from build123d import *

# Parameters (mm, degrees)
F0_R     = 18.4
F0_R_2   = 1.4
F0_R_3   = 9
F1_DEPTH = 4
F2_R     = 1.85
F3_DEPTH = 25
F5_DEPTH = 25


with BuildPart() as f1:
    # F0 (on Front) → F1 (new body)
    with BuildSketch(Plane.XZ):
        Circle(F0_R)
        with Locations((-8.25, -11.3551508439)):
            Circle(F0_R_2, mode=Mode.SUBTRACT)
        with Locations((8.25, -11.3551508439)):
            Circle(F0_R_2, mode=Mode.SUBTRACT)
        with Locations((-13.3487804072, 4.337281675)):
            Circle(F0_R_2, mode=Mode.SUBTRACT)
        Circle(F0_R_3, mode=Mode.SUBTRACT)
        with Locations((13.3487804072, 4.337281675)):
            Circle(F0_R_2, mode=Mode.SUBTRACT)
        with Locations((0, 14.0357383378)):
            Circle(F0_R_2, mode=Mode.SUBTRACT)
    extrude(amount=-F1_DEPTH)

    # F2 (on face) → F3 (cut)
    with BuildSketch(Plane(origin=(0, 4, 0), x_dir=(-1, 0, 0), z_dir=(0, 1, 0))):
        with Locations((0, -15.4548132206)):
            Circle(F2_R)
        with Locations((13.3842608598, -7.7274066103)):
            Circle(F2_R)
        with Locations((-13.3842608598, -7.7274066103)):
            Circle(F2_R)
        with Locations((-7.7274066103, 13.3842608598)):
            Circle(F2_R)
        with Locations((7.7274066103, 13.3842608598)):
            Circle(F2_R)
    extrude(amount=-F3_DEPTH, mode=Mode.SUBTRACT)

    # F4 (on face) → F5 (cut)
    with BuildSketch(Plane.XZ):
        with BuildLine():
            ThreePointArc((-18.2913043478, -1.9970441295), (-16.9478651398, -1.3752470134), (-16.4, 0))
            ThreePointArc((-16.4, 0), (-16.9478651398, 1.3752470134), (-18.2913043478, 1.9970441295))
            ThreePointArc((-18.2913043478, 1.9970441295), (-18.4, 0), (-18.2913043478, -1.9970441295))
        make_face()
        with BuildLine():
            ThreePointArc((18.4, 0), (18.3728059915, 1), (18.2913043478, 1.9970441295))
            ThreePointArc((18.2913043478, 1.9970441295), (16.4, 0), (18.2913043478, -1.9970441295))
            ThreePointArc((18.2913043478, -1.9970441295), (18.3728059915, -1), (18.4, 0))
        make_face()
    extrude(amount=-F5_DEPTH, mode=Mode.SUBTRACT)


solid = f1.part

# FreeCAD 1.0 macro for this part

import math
import FreeCAD as App
import Part
import Sketcher
from FreeCAD import Vector
Q = App.Units.Quantity

doc = App.newDocument("Part")
body = doc.addObject("PartDesign::Body", "Body")

# Sketch on XZ plane
sketch1 = body.newObject("Sketcher::SketchObject", "Sketch")
sketch1.AttachmentSupport = (doc.getObject("XZ_Plane"), [""])
sketch1.MapMode = "FlatFace"
sketch1.addGeometry([
    Part.Circle(Vector(0, 0, 0), Vector(0, 0, 1), 18.4),  # 0
    Part.Circle(Vector(-8.2, -11.4, 0), Vector(0, 0, 1), 1.4),  # 1
    Part.Circle(Vector(0, 0, 0), Vector(0, 0, 1), 9),  # 2
    Part.Circle(Vector(8.2, -11.4, 0), Vector(0, 0, 1), 1.4),  # 3
    Part.Circle(Vector(-13.3, 4.3, 0), Vector(0, 0, 1), 1.4),  # 4
    Part.Circle(Vector(0, 14, 0), Vector(0, 0, 1), 1.4),  # 5
    Part.Circle(Vector(13.3, 4.3, 0), Vector(0, 0, 1), 1.4),  # 6
], False)
sketch1.addConstraint([
    Sketcher.Constraint("Coincident", 0, 3, -1, 1),
    Sketcher.Constraint("Coincident", 2, 3, -1, 1),
    Sketcher.Constraint("Equal", 1, 3),
    Sketcher.Constraint("Equal", 3, 4),
    Sketcher.Constraint("Equal", 4, 5),
    Sketcher.Constraint("Equal", 5, 6),
    Sketcher.Constraint("Symmetric", 1, 3, 3, 3, -2),
    Sketcher.Constraint("Symmetric", 4, 3, 6, 3, -2),
    Sketcher.Constraint("PointOnObject", 5, 3, -2),
    Sketcher.Constraint("Diameter", 2, Q("18 mm")),
    Sketcher.Constraint("Diameter", 0, Q("36.8 mm")),
    Sketcher.Constraint("Diameter", 1, Q("2.8 mm")),
    Sketcher.Constraint("DistanceX", 1, 3, 3, 3, Q("16.5 mm")),
    Sketcher.Constraint("DistanceY", 1, 3, -1, 1, Q("11.355151 mm")),
    Sketcher.Constraint("DistanceX", 4, 3, -1, 1, Q("13.34878 mm")),
    Sketcher.Constraint("DistanceY", -1, 1, 4, 3, Q("4.337282 mm")),
    Sketcher.Constraint("DistanceY", -1, 1, 5, 3, Q("14.035738 mm")),
])
pad1 = body.newObject("PartDesign::Pad", "Pad")
pad1.Profile = sketch1
pad1.Length = 4
pad1.Reversed = True

# Sketch on XZ plane
sketch2 = body.newObject("Sketcher::SketchObject", "Sketch001")
sketch2.AttachmentSupport = (doc.getObject("XZ_Plane"), [""])
sketch2.MapMode = "FlatFace"
sketch2.AttachmentOffset = App.Placement(Vector(0, 0, -4), App.Rotation())
sketch2.addGeometry([
    Part.Circle(Vector(0, -15.5, 0), Vector(0, 0, 1), 1.9),  # 0
    Part.Circle(Vector(-13.4, -7.7, 0), Vector(0, 0, 1), 1.9),  # 1
    Part.Circle(Vector(13.4, -7.7, 0), Vector(0, 0, 1), 1.9),  # 2
    Part.Circle(Vector(7.7, 13.4, 0), Vector(0, 0, 1), 1.9),  # 3
    Part.Circle(Vector(-7.7, 13.4, 0), Vector(0, 0, 1), 1.9),  # 4
], False)
sketch2.addConstraint([
    Sketcher.Constraint("Equal", 0, 1),
    Sketcher.Constraint("Equal", 1, 2),
    Sketcher.Constraint("Equal", 2, 3),
    Sketcher.Constraint("Equal", 3, 4),
    Sketcher.Constraint("Symmetric", 1, 3, 2, 3, -2),
    Sketcher.Constraint("Symmetric", 3, 3, 4, 3, -2),
    Sketcher.Constraint("PointOnObject", 0, 3, -2),
    Sketcher.Constraint("Diameter", 0, Q("3.7 mm")),
    Sketcher.Constraint("DistanceX", 1, 3, -1, 1, Q("13.384261 mm")),
    Sketcher.Constraint("DistanceY", -1, 1, 3, 3, Q("13.384261 mm")),
    Sketcher.Constraint("DistanceY", 0, 3, -1, 1, Q("15.454813 mm")),
    Sketcher.Constraint("DistanceY", 1, 3, -1, 1, Q("7.727407 mm")),
    Sketcher.Constraint("DistanceX", -1, 1, 3, 3, Q("7.727407 mm")),
])
pocket1 = body.newObject("PartDesign::Pocket", "Pocket")
pocket1.Profile = sketch2
pocket1.Length = 25
pocket1.Reversed = True

# Sketch on XZ plane
sketch3 = body.newObject("Sketcher::SketchObject", "Sketch002")
sketch3.AttachmentSupport = (doc.getObject("XZ_Plane"), [""])
sketch3.MapMode = "FlatFace"
sketch3.addGeometry([
    Part.ArcOfCircle(Part.Circle(Vector(-18.4, 0, 0), Vector(0, 0, 1), 2), math.radians(-87), math.radians(0)),  # 0
    Part.ArcOfCircle(Part.Circle(Vector(-18.4, 0, 0), Vector(0, 0, 1), 2), math.radians(0), math.radians(87)),  # 1
    Part.ArcOfCircle(Part.Circle(Vector(0, 0, 0), Vector(0, 0, 1), 18.4), math.radians(173.77), math.radians(186.23)),  # 2
    Part.ArcOfCircle(Part.Circle(Vector(0, 0, 0), Vector(0, 0, 1), 18.4), math.radians(0), math.radians(6.23)),  # 3
    Part.ArcOfCircle(Part.Circle(Vector(18.4, 0, 0), Vector(0, 0, 1), 2), math.radians(93), math.radians(267)),  # 4
    Part.ArcOfCircle(Part.Circle(Vector(0, 0, 0), Vector(0, 0, 1), 18.4), math.radians(-6.23), math.radians(0)),  # 5
], False)
sketch3.addConstraint([
    Sketcher.Constraint("Tangent", 0, 2, 1, 1),
    Sketcher.Constraint("Coincident", 1, 2, 2, 1),
    Sketcher.Constraint("Coincident", 2, 2, 0, 1),
    Sketcher.Constraint("Coincident", 3, 2, 4, 1),
    Sketcher.Constraint("Coincident", 4, 2, 5, 1),
    Sketcher.Constraint("Tangent", 5, 2, 3, 1),
    Sketcher.Constraint("Coincident", 2, 3, -1, 1),
    Sketcher.Constraint("Coincident", 3, 3, -1, 1),
    Sketcher.Constraint("Coincident", 5, 2, 4, 3),
    Sketcher.Constraint("Equal", 0, 1),
    Sketcher.Constraint("Equal", 2, 3),
    Sketcher.Constraint("Equal", 1, 4),
    Sketcher.Constraint("Equal", 3, 5),
    Sketcher.Constraint("Symmetric", 0, 3, 4, 3, -1, 1),
    Sketcher.Constraint("PointOnObject", 0, 3, -1),
    Sketcher.Constraint("PointOnObject", 0, 2, -1),
    Sketcher.Constraint("Radius", 0, Q("2 mm")),
    Sketcher.Constraint("Radius", 2, Q("18.4 mm")),
])
pocket2 = body.newObject("PartDesign::Pocket", "Pocket001")
pocket2.Profile = sketch3
pocket2.Length = 25

doc.recompute()
